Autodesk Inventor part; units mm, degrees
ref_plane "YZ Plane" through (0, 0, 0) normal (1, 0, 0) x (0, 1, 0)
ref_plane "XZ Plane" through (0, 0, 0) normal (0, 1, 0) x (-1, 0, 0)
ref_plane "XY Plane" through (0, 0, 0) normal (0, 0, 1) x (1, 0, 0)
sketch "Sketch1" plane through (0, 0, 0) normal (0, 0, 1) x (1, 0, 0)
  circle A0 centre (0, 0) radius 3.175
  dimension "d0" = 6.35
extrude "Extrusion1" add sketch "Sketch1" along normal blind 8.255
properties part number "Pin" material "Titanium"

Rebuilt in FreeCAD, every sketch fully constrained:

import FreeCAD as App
import Part
import Sketcher
Q = App.Units.Quantity

doc = App.newDocument("Part")
params = doc.addObject("Spreadsheet::Sheet", "Params")
for row, (alias, value) in enumerate([
    ("sketch1_diameter", "0.25 in"),
    ("pad1_length", "0.325 in"),
], start=1):
    params.set(f"A{row}", alias)
    params.set(f"B{row}", "=" + value)
    params.setAlias(f"B{row}", alias)

body = doc.addObject("PartDesign::Body", "Body")

sketch1 = body.newObject("Sketcher::SketchObject", "Sketch")
sketch1.AttachmentSupport = (doc.getObject("XY_Plane"), [""])
sketch1.MapMode = "FlatFace"
sketch1.addGeometry(Part.Circle(App.Vector(0, 0, 0), App.Vector(0, 0, 1), 3.2), False)
sketch1.addConstraint(Sketcher.Constraint("Coincident", 0, 3, -1, 1))
sketch1.addConstraint(Sketcher.Constraint("Diameter", 0, Q("0.25 in")))
sketch1.setExpression("Constraints[1]", "Params.sketch1_diameter")
pad1 = body.newObject("PartDesign::Pad", "Pad")
pad1.Profile = sketch1
pad1.setExpression("Length", "Params.pad1_length")

doc.recompute()
